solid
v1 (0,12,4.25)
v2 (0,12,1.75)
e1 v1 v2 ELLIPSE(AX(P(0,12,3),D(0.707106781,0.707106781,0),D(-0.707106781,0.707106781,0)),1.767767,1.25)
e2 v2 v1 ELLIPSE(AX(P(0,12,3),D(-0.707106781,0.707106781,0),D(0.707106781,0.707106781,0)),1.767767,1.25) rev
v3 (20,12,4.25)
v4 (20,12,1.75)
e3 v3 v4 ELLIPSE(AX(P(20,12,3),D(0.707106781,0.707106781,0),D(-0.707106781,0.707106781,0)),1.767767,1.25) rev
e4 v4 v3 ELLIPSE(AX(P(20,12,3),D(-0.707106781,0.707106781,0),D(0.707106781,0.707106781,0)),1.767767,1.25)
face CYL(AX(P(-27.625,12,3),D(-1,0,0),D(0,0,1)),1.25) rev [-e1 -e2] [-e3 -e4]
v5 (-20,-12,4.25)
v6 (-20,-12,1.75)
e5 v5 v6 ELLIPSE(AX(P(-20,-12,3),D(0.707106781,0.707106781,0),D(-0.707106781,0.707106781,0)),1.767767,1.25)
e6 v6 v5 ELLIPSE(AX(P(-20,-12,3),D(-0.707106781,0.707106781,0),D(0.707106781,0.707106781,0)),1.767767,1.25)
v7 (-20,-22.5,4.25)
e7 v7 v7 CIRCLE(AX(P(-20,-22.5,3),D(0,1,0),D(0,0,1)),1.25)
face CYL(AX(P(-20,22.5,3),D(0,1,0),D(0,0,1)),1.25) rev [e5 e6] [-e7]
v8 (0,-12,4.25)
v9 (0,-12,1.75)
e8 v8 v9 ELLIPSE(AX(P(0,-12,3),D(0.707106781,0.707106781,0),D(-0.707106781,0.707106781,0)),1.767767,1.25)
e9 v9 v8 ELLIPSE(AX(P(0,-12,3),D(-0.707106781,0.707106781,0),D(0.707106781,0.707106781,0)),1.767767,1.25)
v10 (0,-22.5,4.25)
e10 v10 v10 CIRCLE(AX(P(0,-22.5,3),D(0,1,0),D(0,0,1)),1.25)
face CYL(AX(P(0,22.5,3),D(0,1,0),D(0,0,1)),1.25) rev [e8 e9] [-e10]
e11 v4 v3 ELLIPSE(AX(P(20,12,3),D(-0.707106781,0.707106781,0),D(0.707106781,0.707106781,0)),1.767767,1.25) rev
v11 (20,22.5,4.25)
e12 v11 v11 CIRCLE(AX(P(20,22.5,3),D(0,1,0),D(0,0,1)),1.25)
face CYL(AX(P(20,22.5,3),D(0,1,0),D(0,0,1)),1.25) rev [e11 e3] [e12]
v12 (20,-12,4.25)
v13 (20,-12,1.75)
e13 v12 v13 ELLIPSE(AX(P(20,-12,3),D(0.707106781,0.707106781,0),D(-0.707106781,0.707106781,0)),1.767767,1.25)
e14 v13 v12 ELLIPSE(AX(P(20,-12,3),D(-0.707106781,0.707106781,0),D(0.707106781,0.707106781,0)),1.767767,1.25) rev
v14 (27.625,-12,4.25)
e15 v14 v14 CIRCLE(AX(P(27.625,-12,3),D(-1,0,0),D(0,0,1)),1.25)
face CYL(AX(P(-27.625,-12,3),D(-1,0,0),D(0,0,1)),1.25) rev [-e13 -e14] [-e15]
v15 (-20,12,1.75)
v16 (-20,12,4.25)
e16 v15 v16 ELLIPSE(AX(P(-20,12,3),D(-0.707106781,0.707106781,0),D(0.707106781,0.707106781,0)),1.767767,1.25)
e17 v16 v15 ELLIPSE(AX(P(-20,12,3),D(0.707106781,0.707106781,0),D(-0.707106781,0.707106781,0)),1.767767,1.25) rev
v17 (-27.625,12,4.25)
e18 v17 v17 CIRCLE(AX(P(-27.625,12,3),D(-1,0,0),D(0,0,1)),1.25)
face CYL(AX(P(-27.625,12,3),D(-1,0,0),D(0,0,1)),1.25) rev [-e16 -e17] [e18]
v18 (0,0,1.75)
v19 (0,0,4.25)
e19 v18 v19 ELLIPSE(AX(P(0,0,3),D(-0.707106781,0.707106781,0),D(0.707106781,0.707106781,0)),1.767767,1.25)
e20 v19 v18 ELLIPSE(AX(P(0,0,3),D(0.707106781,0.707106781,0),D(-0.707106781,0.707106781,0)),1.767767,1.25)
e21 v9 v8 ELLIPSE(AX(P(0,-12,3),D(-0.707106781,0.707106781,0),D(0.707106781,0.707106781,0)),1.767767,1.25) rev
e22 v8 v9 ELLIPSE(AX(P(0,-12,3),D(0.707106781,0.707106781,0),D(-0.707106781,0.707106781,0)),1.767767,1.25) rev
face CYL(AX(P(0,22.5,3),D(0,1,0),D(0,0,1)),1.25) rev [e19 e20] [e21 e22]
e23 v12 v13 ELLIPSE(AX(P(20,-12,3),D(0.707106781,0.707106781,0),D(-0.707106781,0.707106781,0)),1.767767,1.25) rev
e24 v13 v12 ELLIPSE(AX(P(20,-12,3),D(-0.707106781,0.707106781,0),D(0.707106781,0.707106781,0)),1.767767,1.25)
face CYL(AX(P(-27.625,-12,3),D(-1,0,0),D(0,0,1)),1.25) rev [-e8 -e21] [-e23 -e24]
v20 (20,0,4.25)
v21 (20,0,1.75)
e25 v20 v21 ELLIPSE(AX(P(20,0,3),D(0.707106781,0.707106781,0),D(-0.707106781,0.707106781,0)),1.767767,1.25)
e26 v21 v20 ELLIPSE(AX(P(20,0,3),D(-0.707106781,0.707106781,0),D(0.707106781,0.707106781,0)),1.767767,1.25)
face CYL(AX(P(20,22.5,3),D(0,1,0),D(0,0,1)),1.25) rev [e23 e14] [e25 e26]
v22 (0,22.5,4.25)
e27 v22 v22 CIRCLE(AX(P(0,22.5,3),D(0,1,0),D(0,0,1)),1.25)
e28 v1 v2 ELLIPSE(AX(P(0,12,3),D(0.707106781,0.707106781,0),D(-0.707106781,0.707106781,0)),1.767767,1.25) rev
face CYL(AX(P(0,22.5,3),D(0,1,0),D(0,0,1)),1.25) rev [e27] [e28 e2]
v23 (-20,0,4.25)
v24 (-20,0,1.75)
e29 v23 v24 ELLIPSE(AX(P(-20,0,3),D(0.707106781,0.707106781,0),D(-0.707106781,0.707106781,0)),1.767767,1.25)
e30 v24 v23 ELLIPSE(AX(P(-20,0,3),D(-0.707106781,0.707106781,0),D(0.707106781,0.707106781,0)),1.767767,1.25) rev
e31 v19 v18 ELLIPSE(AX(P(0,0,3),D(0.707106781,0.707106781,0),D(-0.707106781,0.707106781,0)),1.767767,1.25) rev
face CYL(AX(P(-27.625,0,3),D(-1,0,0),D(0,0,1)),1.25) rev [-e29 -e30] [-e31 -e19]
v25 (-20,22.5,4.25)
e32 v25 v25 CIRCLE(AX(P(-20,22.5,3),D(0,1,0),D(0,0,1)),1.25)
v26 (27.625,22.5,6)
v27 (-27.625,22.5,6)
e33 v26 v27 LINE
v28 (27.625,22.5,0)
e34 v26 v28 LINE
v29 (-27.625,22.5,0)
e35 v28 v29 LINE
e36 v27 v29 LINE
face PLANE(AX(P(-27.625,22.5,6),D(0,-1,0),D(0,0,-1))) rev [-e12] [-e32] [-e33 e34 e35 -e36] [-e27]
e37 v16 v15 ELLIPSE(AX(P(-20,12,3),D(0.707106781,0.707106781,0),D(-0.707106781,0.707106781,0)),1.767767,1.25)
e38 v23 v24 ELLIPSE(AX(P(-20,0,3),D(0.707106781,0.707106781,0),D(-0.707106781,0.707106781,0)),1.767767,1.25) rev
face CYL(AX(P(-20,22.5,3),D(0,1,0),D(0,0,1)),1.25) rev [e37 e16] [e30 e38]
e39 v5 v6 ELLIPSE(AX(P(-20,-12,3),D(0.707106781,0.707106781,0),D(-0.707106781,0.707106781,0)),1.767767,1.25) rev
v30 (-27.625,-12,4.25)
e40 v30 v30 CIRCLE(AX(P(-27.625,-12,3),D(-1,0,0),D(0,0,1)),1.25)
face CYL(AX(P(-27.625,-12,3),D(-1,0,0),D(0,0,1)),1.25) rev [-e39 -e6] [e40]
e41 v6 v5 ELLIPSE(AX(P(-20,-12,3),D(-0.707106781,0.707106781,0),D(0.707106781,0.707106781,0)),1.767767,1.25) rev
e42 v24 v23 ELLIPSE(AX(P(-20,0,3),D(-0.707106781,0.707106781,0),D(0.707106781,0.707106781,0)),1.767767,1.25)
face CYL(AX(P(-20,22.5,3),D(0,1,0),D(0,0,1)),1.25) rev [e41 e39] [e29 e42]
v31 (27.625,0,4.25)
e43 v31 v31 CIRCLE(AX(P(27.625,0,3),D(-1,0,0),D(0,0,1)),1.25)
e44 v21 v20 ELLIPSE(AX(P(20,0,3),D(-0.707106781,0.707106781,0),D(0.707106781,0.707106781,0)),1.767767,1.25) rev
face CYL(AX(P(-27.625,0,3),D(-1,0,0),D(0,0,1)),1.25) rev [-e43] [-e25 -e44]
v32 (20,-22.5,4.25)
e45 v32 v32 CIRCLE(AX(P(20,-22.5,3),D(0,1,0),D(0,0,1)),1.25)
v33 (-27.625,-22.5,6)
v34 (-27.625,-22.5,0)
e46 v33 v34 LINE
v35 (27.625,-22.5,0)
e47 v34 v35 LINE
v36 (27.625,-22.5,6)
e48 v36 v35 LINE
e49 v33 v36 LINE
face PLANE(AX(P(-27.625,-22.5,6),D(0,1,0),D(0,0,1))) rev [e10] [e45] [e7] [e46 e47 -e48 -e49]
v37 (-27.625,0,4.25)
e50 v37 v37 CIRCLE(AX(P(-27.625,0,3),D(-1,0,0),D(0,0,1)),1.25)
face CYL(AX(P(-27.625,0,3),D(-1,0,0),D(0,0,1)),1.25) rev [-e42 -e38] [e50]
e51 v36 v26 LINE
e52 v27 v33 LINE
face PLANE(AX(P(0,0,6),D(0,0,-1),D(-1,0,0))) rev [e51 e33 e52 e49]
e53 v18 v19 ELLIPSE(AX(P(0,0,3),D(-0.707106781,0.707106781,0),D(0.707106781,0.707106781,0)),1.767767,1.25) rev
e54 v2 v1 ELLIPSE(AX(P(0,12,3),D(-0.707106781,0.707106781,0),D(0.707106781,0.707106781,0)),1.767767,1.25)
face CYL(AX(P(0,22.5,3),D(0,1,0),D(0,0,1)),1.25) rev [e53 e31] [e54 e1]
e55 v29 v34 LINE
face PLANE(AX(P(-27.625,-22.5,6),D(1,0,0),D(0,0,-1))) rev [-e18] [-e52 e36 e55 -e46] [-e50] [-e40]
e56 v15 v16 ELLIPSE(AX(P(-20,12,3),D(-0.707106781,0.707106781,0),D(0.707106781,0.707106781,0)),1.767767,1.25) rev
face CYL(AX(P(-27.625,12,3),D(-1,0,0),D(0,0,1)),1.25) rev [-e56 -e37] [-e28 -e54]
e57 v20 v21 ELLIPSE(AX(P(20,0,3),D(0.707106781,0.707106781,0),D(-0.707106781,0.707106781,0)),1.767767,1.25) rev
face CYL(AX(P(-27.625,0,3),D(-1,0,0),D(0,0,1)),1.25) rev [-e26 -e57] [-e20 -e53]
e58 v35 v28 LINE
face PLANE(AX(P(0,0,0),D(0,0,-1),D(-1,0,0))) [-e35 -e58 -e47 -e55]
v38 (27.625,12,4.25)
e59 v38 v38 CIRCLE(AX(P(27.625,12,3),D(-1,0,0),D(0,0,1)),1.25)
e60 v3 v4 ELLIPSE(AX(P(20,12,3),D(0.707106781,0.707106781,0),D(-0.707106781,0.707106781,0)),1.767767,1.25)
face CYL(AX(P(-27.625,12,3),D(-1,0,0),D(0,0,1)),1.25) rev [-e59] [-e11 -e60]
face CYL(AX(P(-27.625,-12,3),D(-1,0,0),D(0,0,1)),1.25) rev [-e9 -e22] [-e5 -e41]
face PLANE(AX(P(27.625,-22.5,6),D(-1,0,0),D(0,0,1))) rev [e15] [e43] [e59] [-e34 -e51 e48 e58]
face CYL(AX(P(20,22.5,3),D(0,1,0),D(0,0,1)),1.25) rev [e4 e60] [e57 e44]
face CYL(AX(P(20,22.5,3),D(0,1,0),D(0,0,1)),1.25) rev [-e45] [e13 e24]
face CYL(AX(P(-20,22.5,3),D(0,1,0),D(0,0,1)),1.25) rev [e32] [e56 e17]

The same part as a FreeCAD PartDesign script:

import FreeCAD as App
import Part
import Sketcher


def add_polygon(sketch, points):
    """Adds a closed chain of lines whose ends are joined by coincident constraints."""
    first, n = sketch.GeometryCount, len(points)
    for a, b in zip(points, points[1:] + points[:1]):
        sketch.addGeometry(Part.LineSegment(App.Vector(*a, 0), App.Vector(*b, 0)), False)
    for i in range(n):
        sketch.addConstraint(Sketcher.Constraint("Coincident", first + i, 2, first + (i + 1) % n, 1))

doc = App.newDocument("Part")
params = doc.addObject("Spreadsheet::Sheet", "Params")
for row, (alias, value) in enumerate([
    ("sketch1_height", "45 mm"),
    ("sketch1_width", "55.25 mm"),
    ("pad1_length", "6 mm"),
    ("sketch2_diameter", "2.5 mm"),
    ("hole_diameter", "2.5 mm"),
    ("sketch3_diameter", "2.5 mm"),
    ("hole2_diameter", "2.5 mm"),
], start=1):
    params.set(f"A{row}", alias)
    params.set(f"B{row}", "=" + value)
    params.setAlias(f"B{row}", alias)

body = doc.addObject("PartDesign::Body", "Body")

sketch1 = body.newObject("Sketcher::SketchObject", "Sketch")
sketch1.AttachmentSupport = (doc.getObject("XY_Plane"), [""])
sketch1.MapMode = "FlatFace"
add_polygon(sketch1, [(-28, 22), (-28, -22), (28, -22), (28, 22)])
sketch1.addConstraint(Sketcher.Constraint("Vertical", 0))
sketch1.addConstraint(Sketcher.Constraint("Horizontal", 1))
sketch1.addConstraint(Sketcher.Constraint("Vertical", 2))
sketch1.addConstraint(Sketcher.Constraint("Horizontal", 3))
sketch1.addConstraint(Sketcher.Constraint("Symmetric", 0, 2, 2, 2, -1, 1))
sketch1.addConstraint(Sketcher.Constraint("DistanceY", 0, 2, 0, 1, 45.0))
sketch1.addConstraint(Sketcher.Constraint("DistanceX", 1, 1, 1, 2, 55.25))
sketch1.setExpression("Constraints[9]", "Params.sketch1_height")
sketch1.setExpression("Constraints[10]", "Params.sketch1_width")
pad1 = body.newObject("PartDesign::Pad", "Pad")
pad1.Profile = sketch1
pad1.setExpression("Length", "Params.pad1_length")

sketch2 = body.newObject("Sketcher::SketchObject", "Sketch001")
sketch2.AttachmentSupport = (doc.getObject("XZ_Plane"), [""])
sketch2.MapMode = "FlatFace"
sketch2.AttachmentOffset = App.Placement(App.Vector(0, 0, -22.5), App.Rotation())
sketch2.addGeometry(Part.Circle(App.Vector(-20, 3, 0), App.Vector(0, 0, 1), 1.2), False)
sketch2.addGeometry(Part.Circle(App.Vector(0, 3, 0), App.Vector(0, 0, 1), 1.2), False)
sketch2.addGeometry(Part.Circle(App.Vector(20, 3, 0), App.Vector(0, 0, 1), 1.2), False)
sketch2.addConstraint(Sketcher.Constraint("Equal", 0, 1))
sketch2.addConstraint(Sketcher.Constraint("Equal", 1, 2))
sketch2.addConstraint(Sketcher.Constraint("Symmetric", 0, 3, 2, 3, -2))
sketch2.addConstraint(Sketcher.Constraint("PointOnObject", 1, 3, -2))
sketch2.addConstraint(Sketcher.Constraint("Horizontal", 0, 3, 1, 3))
sketch2.addConstraint(Sketcher.Constraint("Diameter", 0, 2.5))
sketch2.addConstraint(Sketcher.Constraint("DistanceX", 0, 3, -1, 1, 20.0))
sketch2.addConstraint(Sketcher.Constraint("DistanceY", -1, 1, 0, 3, 3.0))
sketch2.setExpression("Constraints[5]", "Params.sketch2_diameter")
doc.recompute()
hole = body.newObject("PartDesign::Hole", "Hole")
hole.Profile = sketch2
hole.ThreadType = "None"
hole.setExpression("Diameter", "Params.hole_diameter")
hole.DepthType = "ThroughAll"
hole.Reversed = True

sketch3 = body.newObject("Sketcher::SketchObject", "Sketch002")
sketch3.AttachmentSupport = (doc.getObject("YZ_Plane"), [""])
sketch3.MapMode = "FlatFace"
sketch3.AttachmentOffset = App.Placement(App.Vector(0, 0, -27.625), App.Rotation())
sketch3.addGeometry(Part.Circle(App.Vector(12, 3, 0), App.Vector(0, 0, 1), 1.2), False)
sketch3.addGeometry(Part.Circle(App.Vector(-12, 3, 0), App.Vector(0, 0, 1), 1.2), False)
sketch3.addGeometry(Part.Circle(App.Vector(0, 3, 0), App.Vector(0, 0, 1), 1.2), False)
sketch3.addConstraint(Sketcher.Constraint("Equal", 0, 1))
sketch3.addConstraint(Sketcher.Constraint("Equal", 1, 2))
sketch3.addConstraint(Sketcher.Constraint("Symmetric", 0, 3, 1, 3, -2))
sketch3.addConstraint(Sketcher.Constraint("PointOnObject", 2, 3, -2))
sketch3.addConstraint(Sketcher.Constraint("Horizontal", 1, 3, 2, 3))
sketch3.addConstraint(Sketcher.Constraint("Diameter", 0, 2.5))
sketch3.addConstraint(Sketcher.Constraint("DistanceX", -1, 1, 0, 3, 12.0))
sketch3.addConstraint(Sketcher.Constraint("DistanceY", -1, 1, 0, 3, 3.0))
sketch3.setExpression("Constraints[5]", "Params.sketch3_diameter")
doc.recompute()
hole2 = body.newObject("PartDesign::Hole", "Hole001")
hole2.Profile = sketch3
hole2.ThreadType = "None"
hole2.setExpression("Diameter", "Params.hole2_diameter")
hole2.DepthType = "ThroughAll"
hole2.Reversed = True

doc.recompute()
